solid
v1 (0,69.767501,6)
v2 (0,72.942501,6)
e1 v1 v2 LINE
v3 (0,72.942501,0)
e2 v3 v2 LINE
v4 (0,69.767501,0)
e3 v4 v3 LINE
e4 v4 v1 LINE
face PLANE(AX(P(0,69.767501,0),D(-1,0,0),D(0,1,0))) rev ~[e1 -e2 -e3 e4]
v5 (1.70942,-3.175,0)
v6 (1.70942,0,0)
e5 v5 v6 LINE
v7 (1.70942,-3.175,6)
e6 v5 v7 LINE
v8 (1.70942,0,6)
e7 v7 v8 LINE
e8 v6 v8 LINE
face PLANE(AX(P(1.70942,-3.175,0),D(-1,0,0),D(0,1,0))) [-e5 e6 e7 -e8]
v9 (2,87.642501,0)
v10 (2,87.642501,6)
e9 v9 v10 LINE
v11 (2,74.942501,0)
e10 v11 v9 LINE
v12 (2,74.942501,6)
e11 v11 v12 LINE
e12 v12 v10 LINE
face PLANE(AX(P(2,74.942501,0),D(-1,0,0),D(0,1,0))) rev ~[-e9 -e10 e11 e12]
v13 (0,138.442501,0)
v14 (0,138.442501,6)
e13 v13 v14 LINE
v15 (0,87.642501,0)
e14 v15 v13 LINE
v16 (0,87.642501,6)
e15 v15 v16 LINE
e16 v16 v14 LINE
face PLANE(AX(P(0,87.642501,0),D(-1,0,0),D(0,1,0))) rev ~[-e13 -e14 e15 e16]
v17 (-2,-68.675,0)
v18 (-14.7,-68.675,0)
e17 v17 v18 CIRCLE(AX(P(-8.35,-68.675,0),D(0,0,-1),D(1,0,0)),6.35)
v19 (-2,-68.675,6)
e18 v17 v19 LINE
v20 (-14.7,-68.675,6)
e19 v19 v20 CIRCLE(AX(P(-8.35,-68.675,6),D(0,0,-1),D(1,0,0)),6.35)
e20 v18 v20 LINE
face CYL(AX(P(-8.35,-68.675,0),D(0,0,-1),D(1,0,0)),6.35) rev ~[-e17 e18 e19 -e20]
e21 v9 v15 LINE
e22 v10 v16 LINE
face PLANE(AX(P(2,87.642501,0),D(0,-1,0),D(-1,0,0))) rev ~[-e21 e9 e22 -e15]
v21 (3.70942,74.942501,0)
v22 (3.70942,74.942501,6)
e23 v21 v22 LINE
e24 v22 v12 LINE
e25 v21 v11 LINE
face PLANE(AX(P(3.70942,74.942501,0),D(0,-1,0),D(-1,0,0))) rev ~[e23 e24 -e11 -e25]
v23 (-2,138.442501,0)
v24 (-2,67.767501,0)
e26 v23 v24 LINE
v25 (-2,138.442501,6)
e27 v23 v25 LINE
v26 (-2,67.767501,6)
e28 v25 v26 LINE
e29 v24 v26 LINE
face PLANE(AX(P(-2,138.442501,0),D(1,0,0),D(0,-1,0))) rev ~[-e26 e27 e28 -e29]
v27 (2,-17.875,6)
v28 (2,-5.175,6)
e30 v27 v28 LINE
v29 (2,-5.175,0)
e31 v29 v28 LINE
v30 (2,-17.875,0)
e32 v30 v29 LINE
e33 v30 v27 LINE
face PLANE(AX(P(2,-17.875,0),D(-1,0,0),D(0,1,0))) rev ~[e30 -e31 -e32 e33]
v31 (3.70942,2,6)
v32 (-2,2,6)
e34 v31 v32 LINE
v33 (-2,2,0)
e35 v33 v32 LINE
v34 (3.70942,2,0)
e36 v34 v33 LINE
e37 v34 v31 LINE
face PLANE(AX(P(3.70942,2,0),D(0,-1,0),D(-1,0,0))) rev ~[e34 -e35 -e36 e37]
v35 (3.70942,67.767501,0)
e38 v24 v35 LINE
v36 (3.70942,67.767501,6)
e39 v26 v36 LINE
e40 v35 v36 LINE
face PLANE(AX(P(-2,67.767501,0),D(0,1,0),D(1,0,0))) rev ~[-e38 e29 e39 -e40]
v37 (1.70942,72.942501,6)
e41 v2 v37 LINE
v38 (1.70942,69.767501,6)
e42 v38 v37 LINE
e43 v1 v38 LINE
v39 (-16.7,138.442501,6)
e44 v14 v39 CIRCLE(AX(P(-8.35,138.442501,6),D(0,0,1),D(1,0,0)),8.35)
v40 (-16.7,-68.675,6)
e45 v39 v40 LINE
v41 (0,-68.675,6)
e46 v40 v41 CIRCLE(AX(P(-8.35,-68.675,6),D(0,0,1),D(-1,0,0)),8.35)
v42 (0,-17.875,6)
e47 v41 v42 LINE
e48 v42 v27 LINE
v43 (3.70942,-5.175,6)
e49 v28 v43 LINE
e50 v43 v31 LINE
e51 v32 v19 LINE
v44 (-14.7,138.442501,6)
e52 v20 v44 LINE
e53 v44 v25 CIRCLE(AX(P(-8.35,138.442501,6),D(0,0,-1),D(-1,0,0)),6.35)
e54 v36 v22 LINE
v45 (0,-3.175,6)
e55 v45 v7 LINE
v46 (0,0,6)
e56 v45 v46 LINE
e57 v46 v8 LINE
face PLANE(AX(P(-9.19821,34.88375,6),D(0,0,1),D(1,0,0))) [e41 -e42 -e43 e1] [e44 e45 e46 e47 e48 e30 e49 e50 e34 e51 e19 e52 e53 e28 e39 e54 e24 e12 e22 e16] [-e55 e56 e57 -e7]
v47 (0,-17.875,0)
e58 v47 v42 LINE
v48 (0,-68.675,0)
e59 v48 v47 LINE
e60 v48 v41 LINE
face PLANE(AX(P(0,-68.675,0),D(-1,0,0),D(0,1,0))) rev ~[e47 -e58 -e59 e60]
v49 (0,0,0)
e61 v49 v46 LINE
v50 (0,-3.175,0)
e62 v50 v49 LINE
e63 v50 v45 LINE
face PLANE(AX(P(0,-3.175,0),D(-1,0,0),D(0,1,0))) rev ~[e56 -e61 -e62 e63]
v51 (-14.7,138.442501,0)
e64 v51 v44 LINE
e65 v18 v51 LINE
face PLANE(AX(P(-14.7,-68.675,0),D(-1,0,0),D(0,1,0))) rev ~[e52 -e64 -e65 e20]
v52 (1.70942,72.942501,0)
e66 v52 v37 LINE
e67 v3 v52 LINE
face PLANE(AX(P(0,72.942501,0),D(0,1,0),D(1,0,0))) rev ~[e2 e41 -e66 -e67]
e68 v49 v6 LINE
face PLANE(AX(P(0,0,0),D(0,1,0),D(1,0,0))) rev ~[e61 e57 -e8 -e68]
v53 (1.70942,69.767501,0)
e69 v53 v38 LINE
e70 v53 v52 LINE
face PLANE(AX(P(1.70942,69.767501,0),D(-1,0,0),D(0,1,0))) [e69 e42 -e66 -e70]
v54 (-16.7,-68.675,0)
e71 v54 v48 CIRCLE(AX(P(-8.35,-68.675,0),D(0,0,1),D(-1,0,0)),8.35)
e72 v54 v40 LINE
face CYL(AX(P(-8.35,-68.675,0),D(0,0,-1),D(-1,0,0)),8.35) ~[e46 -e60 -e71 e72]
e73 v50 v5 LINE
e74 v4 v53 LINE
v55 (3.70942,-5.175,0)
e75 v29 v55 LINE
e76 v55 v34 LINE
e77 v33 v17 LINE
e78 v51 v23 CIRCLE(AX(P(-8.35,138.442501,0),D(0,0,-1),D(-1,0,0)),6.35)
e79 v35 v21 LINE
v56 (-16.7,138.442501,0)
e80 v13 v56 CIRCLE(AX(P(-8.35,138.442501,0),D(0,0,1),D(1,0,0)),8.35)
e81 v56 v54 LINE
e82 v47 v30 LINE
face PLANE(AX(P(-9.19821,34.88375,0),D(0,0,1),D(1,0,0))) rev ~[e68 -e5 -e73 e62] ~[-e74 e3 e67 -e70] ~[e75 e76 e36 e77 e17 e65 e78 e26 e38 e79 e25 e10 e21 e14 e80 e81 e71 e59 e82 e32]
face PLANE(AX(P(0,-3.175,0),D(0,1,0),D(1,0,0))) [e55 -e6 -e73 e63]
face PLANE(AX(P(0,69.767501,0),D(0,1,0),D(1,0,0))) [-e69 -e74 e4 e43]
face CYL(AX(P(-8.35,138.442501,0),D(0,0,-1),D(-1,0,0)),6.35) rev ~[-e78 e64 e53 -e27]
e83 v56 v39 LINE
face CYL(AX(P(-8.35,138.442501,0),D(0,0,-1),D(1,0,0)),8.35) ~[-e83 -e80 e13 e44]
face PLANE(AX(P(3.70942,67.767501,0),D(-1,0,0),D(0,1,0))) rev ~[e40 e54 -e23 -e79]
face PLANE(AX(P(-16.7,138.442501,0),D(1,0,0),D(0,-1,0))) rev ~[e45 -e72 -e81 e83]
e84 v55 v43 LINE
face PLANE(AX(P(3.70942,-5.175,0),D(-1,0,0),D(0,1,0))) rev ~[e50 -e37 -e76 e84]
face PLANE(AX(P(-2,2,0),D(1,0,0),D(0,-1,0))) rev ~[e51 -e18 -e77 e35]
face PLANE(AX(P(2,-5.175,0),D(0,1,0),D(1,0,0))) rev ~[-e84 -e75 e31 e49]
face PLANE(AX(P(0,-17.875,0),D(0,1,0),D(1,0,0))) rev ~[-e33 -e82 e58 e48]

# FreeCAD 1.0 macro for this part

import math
import FreeCAD as App
import Part
import Sketcher

V = App.Vector
Q = App.Units.Quantity


def add_polygon(sketch, points):
    """Adds a closed chain of lines whose ends are joined by coincident constraints."""
    first, n = sketch.GeometryCount, len(points)
    for a, b in zip(points, points[1:] + points[:1]):
        sketch.addGeometry(Part.LineSegment(App.Vector(*a, 0), App.Vector(*b, 0)), False)
    for i in range(n):
        sketch.addConstraint(Sketcher.Constraint("Coincident", first + i, 2, first + (i + 1) % n, 1))

doc = App.newDocument("Part")
body = doc.addObject("PartDesign::Body", "Body")

# Sketch on XY plane
sketch1 = doc.addObject("Sketcher::SketchObject", "Sketch")
body.addObject(sketch1)
sketch1.AttachmentSupport = (doc.XY_Plane, [""])
sketch1.MapMode = "FlatFace"
sketch1.addGeometry(Part.LineSegment(V(3.7, 2, 0), V(-2, 2, 0)), False)  # 0
sketch1.addGeometry(Part.LineSegment(V(-2, 2, 0), V(-2, -68.7, 0)), False)  # 1
sketch1.addGeometry(Part.ArcOfCircle(Part.Circle(V(-8.3, -68.7, 0), V(0, 0, 1), 6.3), math.radians(180), math.radians(360)), False)  # 2
sketch1.addGeometry(Part.LineSegment(V(-14.7, -68.7, 0), V(-14.7, 138.4, 0)), False)  # 3
sketch1.addGeometry(Part.ArcOfCircle(Part.Circle(V(-8.3, 138.4, 0), V(0, 0, 1), 6.3), math.radians(0), math.radians(180)), False)  # 4
sketch1.addGeometry(Part.LineSegment(V(-2, 138.4, 0), V(-2, 67.8, 0)), False)  # 5
sketch1.addGeometry(Part.LineSegment(V(-2, 67.8, 0), V(3.7, 67.8, 0)), False)  # 6
sketch1.addGeometry(Part.LineSegment(V(3.7, 67.8, 0), V(3.7, 74.9, 0)), False)  # 7
sketch1.addGeometry(Part.LineSegment(V(3.7, 74.9, 0), V(2, 74.9, 0)), False)  # 8
sketch1.addGeometry(Part.LineSegment(V(2, 74.9, 0), V(2, 87.6, 0)), False)  # 9
sketch1.addGeometry(Part.LineSegment(V(2, 87.6, 0), V(0, 87.6, 0)), False)  # 10
sketch1.addGeometry(Part.LineSegment(V(0, 87.6, 0), V(0, 138.4, 0)), False)  # 11
sketch1.addGeometry(Part.ArcOfCircle(Part.Circle(V(-8.3, 138.4, 0), V(0, 0, 1), 8.3), math.radians(0), math.radians(180)), False)  # 12
sketch1.addGeometry(Part.LineSegment(V(-16.7, 138.4, 0), V(-16.7, -68.7, 0)), False)  # 13
sketch1.addGeometry(Part.ArcOfCircle(Part.Circle(V(-8.3, -68.7, 0), V(0, 0, 1), 8.3), math.radians(180), math.radians(360)), False)  # 14
sketch1.addGeometry(Part.LineSegment(V(0, -68.7, 0), V(0, -17.9, 0)), False)  # 15
sketch1.addGeometry(Part.LineSegment(V(0, -17.9, 0), V(2, -17.9, 0)), False)  # 16
sketch1.addGeometry(Part.LineSegment(V(2, -17.9, 0), V(2, -5.2, 0)), False)  # 17
sketch1.addGeometry(Part.LineSegment(V(2, -5.2, 0), V(3.7, -5.2, 0)), False)  # 18
sketch1.addGeometry(Part.LineSegment(V(3.7, -5.2, 0), V(3.7, 2, 0)), False)  # 19
add_polygon(sketch1, [(1.7, -3.2), (0, -3.2), (0, 0), (1.7, 0)])  # lines 20-23
add_polygon(sketch1, [(1.7, 69.8), (0, 69.8), (0, 72.9), (1.7, 72.9)])  # lines 24-27
sketch1.addConstraint(Sketcher.Constraint("Coincident", 0, 2, 1, 1))
sketch1.addConstraint(Sketcher.Constraint("Tangent", 1, 2, 2, 2))
sketch1.addConstraint(Sketcher.Constraint("Tangent", 2, 1, 3, 1))
sketch1.addConstraint(Sketcher.Constraint("Tangent", 3, 2, 4, 2))
sketch1.addConstraint(Sketcher.Constraint("Tangent", 4, 1, 5, 1))
sketch1.addConstraint(Sketcher.Constraint("Coincident", 5, 2, 6, 1))
sketch1.addConstraint(Sketcher.Constraint("Coincident", 6, 2, 7, 1))
sketch1.addConstraint(Sketcher.Constraint("Coincident", 7, 2, 8, 1))
sketch1.addConstraint(Sketcher.Constraint("Coincident", 8, 2, 9, 1))
sketch1.addConstraint(Sketcher.Constraint("Coincident", 9, 2, 10, 1))
sketch1.addConstraint(Sketcher.Constraint("Coincident", 10, 2, 11, 1))
sketch1.addConstraint(Sketcher.Constraint("Tangent", 11, 2, 12, 1))
sketch1.addConstraint(Sketcher.Constraint("Tangent", 12, 2, 13, 1))
sketch1.addConstraint(Sketcher.Constraint("Tangent", 13, 2, 14, 1))
sketch1.addConstraint(Sketcher.Constraint("Tangent", 14, 2, 15, 1))
sketch1.addConstraint(Sketcher.Constraint("Coincident", 15, 2, 16, 1))
sketch1.addConstraint(Sketcher.Constraint("Coincident", 16, 2, 17, 1))
sketch1.addConstraint(Sketcher.Constraint("Coincident", 17, 2, 18, 1))
sketch1.addConstraint(Sketcher.Constraint("Coincident", 18, 2, 19, 1))
sketch1.addConstraint(Sketcher.Constraint("Coincident", 19, 2, 0, 1))
sketch1.addConstraint(Sketcher.Constraint("Horizontal", 0))
sketch1.addConstraint(Sketcher.Constraint("Vertical", 1))
sketch1.addConstraint(Sketcher.Constraint("Vertical", 3))
sketch1.addConstraint(Sketcher.Constraint("Vertical", 5))
sketch1.addConstraint(Sketcher.Constraint("Horizontal", 6))
sketch1.addConstraint(Sketcher.Constraint("Vertical", 7))
sketch1.addConstraint(Sketcher.Constraint("Horizontal", 8))
sketch1.addConstraint(Sketcher.Constraint("Vertical", 9))
sketch1.addConstraint(Sketcher.Constraint("Horizontal", 10))
sketch1.addConstraint(Sketcher.Constraint("Vertical", 11))
sketch1.addConstraint(Sketcher.Constraint("Vertical", 13))
sketch1.addConstraint(Sketcher.Constraint("Vertical", 15))
sketch1.addConstraint(Sketcher.Constraint("Horizontal", 16))
sketch1.addConstraint(Sketcher.Constraint("Vertical", 17))
sketch1.addConstraint(Sketcher.Constraint("Horizontal", 18))
sketch1.addConstraint(Sketcher.Constraint("Vertical", 19))
sketch1.addConstraint(Sketcher.Constraint("Horizontal", 20))
sketch1.addConstraint(Sketcher.Constraint("Vertical", 21))
sketch1.addConstraint(Sketcher.Constraint("Horizontal", 22))
sketch1.addConstraint(Sketcher.Constraint("Vertical", 23))
sketch1.addConstraint(Sketcher.Constraint("Horizontal", 24))
sketch1.addConstraint(Sketcher.Constraint("Vertical", 25))
sketch1.addConstraint(Sketcher.Constraint("Horizontal", 26))
sketch1.addConstraint(Sketcher.Constraint("Vertical", 27))
sketch1.addConstraint(Sketcher.Constraint("Coincident", 21, 2, -1, 1))
sketch1.addConstraint(Sketcher.Constraint("Coincident", 12, 3, 4, 3))
sketch1.addConstraint(Sketcher.Constraint("Coincident", 14, 3, 2, 3))
sketch1.addConstraint(Sketcher.Constraint("Equal", 2, 4))
sketch1.addConstraint(Sketcher.Constraint("PointOnObject", 10, 2, -2))
sketch1.addConstraint(Sketcher.Constraint("PointOnObject", 24, 2, -2))
sketch1.addConstraint(Sketcher.Constraint("Vertical", 9, 2, 16, 2))
sketch1.addConstraint(Sketcher.Constraint("Vertical", 7, 2, 18, 2))
sketch1.addConstraint(Sketcher.Constraint("Vertical", 23, 2, 26, 2))
sketch1.addConstraint(Sketcher.Constraint("Equal", 18, 20))
sketch1.addConstraint(Sketcher.Constraint("Equal", 1, 5))
sketch1.addConstraint(Sketcher.Constraint("Equal", 11, 15))
sketch1.addConstraint(Sketcher.Constraint("Equal", 9, 17))
sketch1.addConstraint(Sketcher.Constraint("Equal", 23, 25))
sketch1.addConstraint(Sketcher.Constraint("DistanceX", 10, 2, 10, 1, Q("2 mm")))
sketch1.addConstraint(Sketcher.Constraint("Radius", 2, Q("6.35 mm")))
sketch1.addConstraint(Sketcher.Constraint("Radius", 12, Q("8.35 mm")))
sketch1.addConstraint(Sketcher.Constraint("DistanceY", 9, 1, 9, 2, Q("12.7 mm")))
sketch1.addConstraint(Sketcher.Constraint("DistanceY", 11, 1, 11, 2, Q("50.8 mm")))
sketch1.addConstraint(Sketcher.Constraint("DistanceY", -1, 1, 0, 2, Q("2 mm")))
sketch1.addConstraint(Sketcher.Constraint("DistanceY", 17, 2, 20, 2, Q("2 mm")))
sketch1.addConstraint(Sketcher.Constraint("DistanceY", 5, 2, 24, 2, Q("2 mm")))
sketch1.addConstraint(Sketcher.Constraint("DistanceY", 1, 2, 1, 1, Q("70.675 mm")))
sketch1.addConstraint(Sketcher.Constraint("DistanceY", 3, 1, 3, 2, Q("207.117501 mm")))
sketch1.addConstraint(Sketcher.Constraint("DistanceX", 0, 2, 0, 1, Q("5.70942 mm")))
pad1 = doc.addObject("PartDesign::Pad", "Pad")
body.addObject(pad1)
pad1.Profile = sketch1
pad1.Length = 6

doc.recompute()
